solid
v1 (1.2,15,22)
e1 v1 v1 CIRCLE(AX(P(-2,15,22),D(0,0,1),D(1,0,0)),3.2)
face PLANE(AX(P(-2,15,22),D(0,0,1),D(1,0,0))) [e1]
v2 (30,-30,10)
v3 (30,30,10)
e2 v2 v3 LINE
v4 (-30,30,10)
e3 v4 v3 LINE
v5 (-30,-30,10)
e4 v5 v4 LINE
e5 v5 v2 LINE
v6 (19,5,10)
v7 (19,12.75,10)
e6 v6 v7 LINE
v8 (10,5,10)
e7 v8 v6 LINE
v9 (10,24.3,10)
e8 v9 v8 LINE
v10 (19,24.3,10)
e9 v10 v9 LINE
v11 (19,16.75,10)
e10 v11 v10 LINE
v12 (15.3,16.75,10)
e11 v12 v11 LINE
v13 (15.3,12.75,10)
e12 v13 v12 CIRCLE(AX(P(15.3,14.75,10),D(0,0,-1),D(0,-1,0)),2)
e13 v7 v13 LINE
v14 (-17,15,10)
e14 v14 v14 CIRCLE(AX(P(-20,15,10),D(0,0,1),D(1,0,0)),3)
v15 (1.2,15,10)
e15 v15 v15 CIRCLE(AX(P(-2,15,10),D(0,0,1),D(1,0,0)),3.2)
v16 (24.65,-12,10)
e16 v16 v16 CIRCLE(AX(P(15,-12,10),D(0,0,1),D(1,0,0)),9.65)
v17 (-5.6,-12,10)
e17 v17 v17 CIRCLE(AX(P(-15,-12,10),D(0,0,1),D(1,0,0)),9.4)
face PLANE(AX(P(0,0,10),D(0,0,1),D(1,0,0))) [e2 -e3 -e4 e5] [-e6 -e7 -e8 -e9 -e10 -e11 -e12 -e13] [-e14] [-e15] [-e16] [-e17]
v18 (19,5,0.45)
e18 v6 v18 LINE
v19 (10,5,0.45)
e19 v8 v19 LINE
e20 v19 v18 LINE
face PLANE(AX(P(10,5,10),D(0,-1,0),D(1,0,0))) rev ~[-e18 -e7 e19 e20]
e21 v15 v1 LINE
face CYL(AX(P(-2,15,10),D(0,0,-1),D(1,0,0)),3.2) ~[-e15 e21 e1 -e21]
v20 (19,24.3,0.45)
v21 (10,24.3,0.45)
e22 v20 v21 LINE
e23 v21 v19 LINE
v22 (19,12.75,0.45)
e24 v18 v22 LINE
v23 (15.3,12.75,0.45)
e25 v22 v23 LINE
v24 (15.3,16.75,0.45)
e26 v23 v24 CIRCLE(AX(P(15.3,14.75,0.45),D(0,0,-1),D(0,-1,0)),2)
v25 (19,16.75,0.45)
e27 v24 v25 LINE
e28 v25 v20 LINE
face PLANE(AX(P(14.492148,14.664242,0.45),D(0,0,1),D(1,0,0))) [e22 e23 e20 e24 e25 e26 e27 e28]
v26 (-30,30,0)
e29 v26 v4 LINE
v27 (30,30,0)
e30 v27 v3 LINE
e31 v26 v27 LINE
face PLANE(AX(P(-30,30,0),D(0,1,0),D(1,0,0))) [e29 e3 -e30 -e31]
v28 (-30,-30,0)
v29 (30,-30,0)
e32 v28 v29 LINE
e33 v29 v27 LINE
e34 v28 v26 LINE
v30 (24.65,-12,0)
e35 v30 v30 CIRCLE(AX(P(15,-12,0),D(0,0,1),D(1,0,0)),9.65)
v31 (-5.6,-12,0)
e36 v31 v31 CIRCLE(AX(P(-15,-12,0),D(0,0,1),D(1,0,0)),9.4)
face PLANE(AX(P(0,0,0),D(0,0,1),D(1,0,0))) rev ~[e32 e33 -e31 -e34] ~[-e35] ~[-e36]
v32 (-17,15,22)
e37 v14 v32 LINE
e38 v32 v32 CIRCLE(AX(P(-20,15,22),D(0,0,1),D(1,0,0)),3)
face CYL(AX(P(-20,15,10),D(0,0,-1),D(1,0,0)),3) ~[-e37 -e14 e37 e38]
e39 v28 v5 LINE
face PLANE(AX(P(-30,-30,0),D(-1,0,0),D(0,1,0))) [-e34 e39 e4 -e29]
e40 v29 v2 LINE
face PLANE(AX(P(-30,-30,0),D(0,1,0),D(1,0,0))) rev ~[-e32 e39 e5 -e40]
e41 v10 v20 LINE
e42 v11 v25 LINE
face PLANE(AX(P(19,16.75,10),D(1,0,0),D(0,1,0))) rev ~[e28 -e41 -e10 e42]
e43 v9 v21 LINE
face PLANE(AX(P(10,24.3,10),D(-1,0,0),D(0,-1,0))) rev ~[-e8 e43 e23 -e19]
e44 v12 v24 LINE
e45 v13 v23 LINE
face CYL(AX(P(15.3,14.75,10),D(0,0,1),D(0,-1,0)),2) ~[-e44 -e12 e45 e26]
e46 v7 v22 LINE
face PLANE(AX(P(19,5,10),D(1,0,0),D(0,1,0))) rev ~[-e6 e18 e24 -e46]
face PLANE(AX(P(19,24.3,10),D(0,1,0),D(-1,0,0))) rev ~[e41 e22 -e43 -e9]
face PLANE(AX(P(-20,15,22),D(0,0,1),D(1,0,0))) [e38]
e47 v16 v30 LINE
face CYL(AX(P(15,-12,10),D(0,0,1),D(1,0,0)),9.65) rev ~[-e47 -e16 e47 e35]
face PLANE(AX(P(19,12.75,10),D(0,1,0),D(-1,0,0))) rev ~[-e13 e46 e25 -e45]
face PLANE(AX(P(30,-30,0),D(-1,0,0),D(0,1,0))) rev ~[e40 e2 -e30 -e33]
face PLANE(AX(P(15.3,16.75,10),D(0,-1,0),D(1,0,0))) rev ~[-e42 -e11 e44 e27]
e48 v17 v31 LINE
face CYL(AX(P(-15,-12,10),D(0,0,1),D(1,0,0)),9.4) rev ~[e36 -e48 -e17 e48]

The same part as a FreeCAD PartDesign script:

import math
import FreeCAD as App
import Part
import Sketcher
from FreeCAD import Vector

doc = App.newDocument("Part")
params = doc.addObject("Spreadsheet::Sheet", "Params")
for row, (alias, value) in enumerate([
    ("sketch1_width", "60 mm"),
    ("pad1_length", "10 mm"),
    ("sketch2_diameter", "6 mm"),
    ("sketch2_diameter2", "6.4 mm"),
    ("pad2_length", "12 mm"),
    ("sketch3_diameter", "18.8 mm"),
    ("sketch3_diameter2", "19.3 mm"),
    ("sketch4_radius", "2 mm"),
    ("sketch4_width", "9 mm"),
    ("sketch4_width2", "3.7 mm"),
    ("sketch4_height", "19.3 mm"),
    ("sketch4_height2", "7.75 mm"),
    ("pocket2_length", "9.55 mm"),
], start=1):
    params.set(f"A{row}", alias)
    params.set(f"B{row}", "=" + value)
    params.setAlias(f"B{row}", alias)

body = doc.addObject("PartDesign::Body", "Body")

sketch1 = body.newObject("Sketcher::SketchObject", "Sketch")
sketch1.AttachmentSupport = (doc.getObject("XY_Plane"), [""])
sketch1.MapMode = "FlatFace"
sketch1.addGeometry(Part.LineSegment(Vector(-30, 30, 0), Vector(-30, -30, 0)), False)
sketch1.addGeometry(Part.LineSegment(Vector(-30, -30, 0), Vector(30, -30, 0)), False)
sketch1.addGeometry(Part.LineSegment(Vector(30, -30, 0), Vector(30, 30, 0)), False)
sketch1.addGeometry(Part.LineSegment(Vector(30, 30, 0), Vector(-30, 30, 0)), False)
sketch1.addConstraint(Sketcher.Constraint("Coincident", 0, 2, 1, 1))
sketch1.addConstraint(Sketcher.Constraint("Coincident", 1, 2, 2, 1))
sketch1.addConstraint(Sketcher.Constraint("Coincident", 2, 2, 3, 1))
sketch1.addConstraint(Sketcher.Constraint("Coincident", 3, 2, 0, 1))
sketch1.addConstraint(Sketcher.Constraint("Vertical", 0))
sketch1.addConstraint(Sketcher.Constraint("Horizontal", 1))
sketch1.addConstraint(Sketcher.Constraint("Vertical", 2))
sketch1.addConstraint(Sketcher.Constraint("Horizontal", 3))
sketch1.addConstraint(Sketcher.Constraint("Symmetric", 0, 2, 2, 2, -1, 1))
sketch1.addConstraint(Sketcher.Constraint("Equal", 3, 0))
sketch1.addConstraint(Sketcher.Constraint("DistanceX", 1, 1, 1, 2, 60.0))
sketch1.setExpression("Constraints[10]", "Params.sketch1_width")
pad1 = body.newObject("PartDesign::Pad", "Pad")
pad1.Profile = sketch1
pad1.setExpression("Length", "Params.pad1_length")

sketch2 = body.newObject("Sketcher::SketchObject", "Sketch001")
sketch2.AttachmentSupport = (doc.getObject("XY_Plane"), [""])
sketch2.MapMode = "FlatFace"
sketch2.AttachmentOffset = App.Placement(Vector(0, 0, 10), App.Rotation())
sketch2.addGeometry(Part.Circle(Vector(-20, 15, 0), Vector(0, 0, 1), 3), False)
sketch2.addGeometry(Part.Circle(Vector(-2, 15, 0), Vector(0, 0, 1), 3.2), False)
sketch2.addConstraint(Sketcher.Constraint("Horizontal", 0, 3, 1, 3))
sketch2.addConstraint(Sketcher.Constraint("Diameter", 0, 6.0))
sketch2.addConstraint(Sketcher.Constraint("Diameter", 1, 6.4))
sketch2.addConstraint(Sketcher.Constraint("DistanceX", 0, 3, -1, 1, 20.0))
sketch2.addConstraint(Sketcher.Constraint("DistanceY", -1, 1, 0, 3, 15.0))
sketch2.addConstraint(Sketcher.Constraint("DistanceX", 1, 3, -1, 1, 2.0))
sketch2.setExpression("Constraints[1]", "Params.sketch2_diameter")
sketch2.setExpression("Constraints[2]", "Params.sketch2_diameter2")
pad2 = body.newObject("PartDesign::Pad", "Pad001")
pad2.Profile = sketch2
pad2.setExpression("Length", "Params.pad2_length")

sketch3 = body.newObject("Sketcher::SketchObject", "Sketch002")
sketch3.AttachmentSupport = (doc.getObject("XY_Plane"), [""])
sketch3.MapMode = "FlatFace"
sketch3.AttachmentOffset = App.Placement(Vector(0, 0, 10), App.Rotation())
sketch3.addGeometry(Part.Circle(Vector(-15, -12, 0), Vector(0, 0, 1), 9), False)
sketch3.addGeometry(Part.Circle(Vector(15, -12, 0), Vector(0, 0, 1), 10), False)
sketch3.addConstraint(Sketcher.Constraint("Symmetric", 0, 3, 1, 3, -2))
sketch3.addConstraint(Sketcher.Constraint("Diameter", 0, 18.8))
sketch3.addConstraint(Sketcher.Constraint("Diameter", 1, 19.3))
sketch3.addConstraint(Sketcher.Constraint("DistanceX", 0, 3, -1, 1, 15.0))
sketch3.addConstraint(Sketcher.Constraint("DistanceY", 0, 3, -1, 1, 12.0))
sketch3.setExpression("Constraints[1]", "Params.sketch3_diameter")
sketch3.setExpression("Constraints[2]", "Params.sketch3_diameter2")
pocket1 = body.newObject("PartDesign::Pocket", "Pocket")
pocket1.Profile = sketch3
pocket1.Type = "ThroughAll"

sketch4 = body.newObject("Sketcher::SketchObject", "Sketch003")
sketch4.AttachmentSupport = (doc.getObject("XY_Plane"), [""])
sketch4.MapMode = "FlatFace"
sketch4.AttachmentOffset = App.Placement(Vector(0, 0, 10), App.Rotation())
sketch4.addGeometry(Part.LineSegment(Vector(19, 24.3, 0), Vector(10, 24.3, 0)), False)
sketch4.addGeometry(Part.LineSegment(Vector(10, 24.3, 0), Vector(10, 5, 0)), False)
sketch4.addGeometry(Part.LineSegment(Vector(10, 5, 0), Vector(19, 5, 0)), False)
sketch4.addGeometry(Part.LineSegment(Vector(19, 5, 0), Vector(19, 12.8, 0)), False)
sketch4.addGeometry(Part.LineSegment(Vector(19, 12.8, 0), Vector(15.3, 12.8, 0)), False)
sketch4.addGeometry(Part.ArcOfCircle(Part.Circle(Vector(15.3, 14.8, 0), Vector(0, 0, 1), 2), math.radians(90), math.radians(270)), False)
sketch4.addGeometry(Part.LineSegment(Vector(15.3, 16.8, 0), Vector(19, 16.8, 0)), False)
sketch4.addGeometry(Part.LineSegment(Vector(19, 16.8, 0), Vector(19, 24.3, 0)), False)
sketch4.addConstraint(Sketcher.Constraint("Coincident", 0, 2, 1, 1))
sketch4.addConstraint(Sketcher.Constraint("Coincident", 1, 2, 2, 1))
sketch4.addConstraint(Sketcher.Constraint("Coincident", 2, 2, 3, 1))
sketch4.addConstraint(Sketcher.Constraint("Coincident", 3, 2, 4, 1))
sketch4.addConstraint(Sketcher.Constraint("Tangent", 4, 2, 5, 2))
sketch4.addConstraint(Sketcher.Constraint("Tangent", 5, 1, 6, 1))
sketch4.addConstraint(Sketcher.Constraint("Coincident", 6, 2, 7, 1))
sketch4.addConstraint(Sketcher.Constraint("Coincident", 7, 2, 0, 1))
sketch4.addConstraint(Sketcher.Constraint("Horizontal", 0))
sketch4.addConstraint(Sketcher.Constraint("Vertical", 1))
sketch4.addConstraint(Sketcher.Constraint("Horizontal", 2))
sketch4.addConstraint(Sketcher.Constraint("Vertical", 3))
sketch4.addConstraint(Sketcher.Constraint("Horizontal", 4))
sketch4.addConstraint(Sketcher.Constraint("Horizontal", 6))
sketch4.addConstraint(Sketcher.Constraint("Vertical", 7))
sketch4.addConstraint(Sketcher.Constraint("Vertical", 3, 2, 6, 2))
sketch4.addConstraint(Sketcher.Constraint("Radius", 5, 2.0))
sketch4.addConstraint(Sketcher.Constraint("DistanceX", 0, 2, 0, 1, 9.0))
sketch4.addConstraint(Sketcher.Constraint("DistanceX", 4, 2, 4, 1, 3.7))
sketch4.addConstraint(Sketcher.Constraint("DistanceY", 1, 2, 1, 1, 19.3))
sketch4.addConstraint(Sketcher.Constraint("DistanceX", -1, 1, 0, 2, 10.0))
sketch4.addConstraint(Sketcher.Constraint("DistanceY", -1, 1, 1, 2, 5.0))
sketch4.addConstraint(Sketcher.Constraint("DistanceY", 3, 1, 3, 2, 7.75))
sketch4.setExpression("Constraints[16]", "Params.sketch4_radius")
sketch4.setExpression("Constraints[17]", "Params.sketch4_width")
sketch4.setExpression("Constraints[18]", "Params.sketch4_width2")
sketch4.setExpression("Constraints[19]", "Params.sketch4_height")
sketch4.setExpression("Constraints[22]", "Params.sketch4_height2")
pocket2 = body.newObject("PartDesign::Pocket", "Pocket001")
pocket2.Profile = sketch4
pocket2.setExpression("Length", "Params.pocket2_length")

doc.recompute()
